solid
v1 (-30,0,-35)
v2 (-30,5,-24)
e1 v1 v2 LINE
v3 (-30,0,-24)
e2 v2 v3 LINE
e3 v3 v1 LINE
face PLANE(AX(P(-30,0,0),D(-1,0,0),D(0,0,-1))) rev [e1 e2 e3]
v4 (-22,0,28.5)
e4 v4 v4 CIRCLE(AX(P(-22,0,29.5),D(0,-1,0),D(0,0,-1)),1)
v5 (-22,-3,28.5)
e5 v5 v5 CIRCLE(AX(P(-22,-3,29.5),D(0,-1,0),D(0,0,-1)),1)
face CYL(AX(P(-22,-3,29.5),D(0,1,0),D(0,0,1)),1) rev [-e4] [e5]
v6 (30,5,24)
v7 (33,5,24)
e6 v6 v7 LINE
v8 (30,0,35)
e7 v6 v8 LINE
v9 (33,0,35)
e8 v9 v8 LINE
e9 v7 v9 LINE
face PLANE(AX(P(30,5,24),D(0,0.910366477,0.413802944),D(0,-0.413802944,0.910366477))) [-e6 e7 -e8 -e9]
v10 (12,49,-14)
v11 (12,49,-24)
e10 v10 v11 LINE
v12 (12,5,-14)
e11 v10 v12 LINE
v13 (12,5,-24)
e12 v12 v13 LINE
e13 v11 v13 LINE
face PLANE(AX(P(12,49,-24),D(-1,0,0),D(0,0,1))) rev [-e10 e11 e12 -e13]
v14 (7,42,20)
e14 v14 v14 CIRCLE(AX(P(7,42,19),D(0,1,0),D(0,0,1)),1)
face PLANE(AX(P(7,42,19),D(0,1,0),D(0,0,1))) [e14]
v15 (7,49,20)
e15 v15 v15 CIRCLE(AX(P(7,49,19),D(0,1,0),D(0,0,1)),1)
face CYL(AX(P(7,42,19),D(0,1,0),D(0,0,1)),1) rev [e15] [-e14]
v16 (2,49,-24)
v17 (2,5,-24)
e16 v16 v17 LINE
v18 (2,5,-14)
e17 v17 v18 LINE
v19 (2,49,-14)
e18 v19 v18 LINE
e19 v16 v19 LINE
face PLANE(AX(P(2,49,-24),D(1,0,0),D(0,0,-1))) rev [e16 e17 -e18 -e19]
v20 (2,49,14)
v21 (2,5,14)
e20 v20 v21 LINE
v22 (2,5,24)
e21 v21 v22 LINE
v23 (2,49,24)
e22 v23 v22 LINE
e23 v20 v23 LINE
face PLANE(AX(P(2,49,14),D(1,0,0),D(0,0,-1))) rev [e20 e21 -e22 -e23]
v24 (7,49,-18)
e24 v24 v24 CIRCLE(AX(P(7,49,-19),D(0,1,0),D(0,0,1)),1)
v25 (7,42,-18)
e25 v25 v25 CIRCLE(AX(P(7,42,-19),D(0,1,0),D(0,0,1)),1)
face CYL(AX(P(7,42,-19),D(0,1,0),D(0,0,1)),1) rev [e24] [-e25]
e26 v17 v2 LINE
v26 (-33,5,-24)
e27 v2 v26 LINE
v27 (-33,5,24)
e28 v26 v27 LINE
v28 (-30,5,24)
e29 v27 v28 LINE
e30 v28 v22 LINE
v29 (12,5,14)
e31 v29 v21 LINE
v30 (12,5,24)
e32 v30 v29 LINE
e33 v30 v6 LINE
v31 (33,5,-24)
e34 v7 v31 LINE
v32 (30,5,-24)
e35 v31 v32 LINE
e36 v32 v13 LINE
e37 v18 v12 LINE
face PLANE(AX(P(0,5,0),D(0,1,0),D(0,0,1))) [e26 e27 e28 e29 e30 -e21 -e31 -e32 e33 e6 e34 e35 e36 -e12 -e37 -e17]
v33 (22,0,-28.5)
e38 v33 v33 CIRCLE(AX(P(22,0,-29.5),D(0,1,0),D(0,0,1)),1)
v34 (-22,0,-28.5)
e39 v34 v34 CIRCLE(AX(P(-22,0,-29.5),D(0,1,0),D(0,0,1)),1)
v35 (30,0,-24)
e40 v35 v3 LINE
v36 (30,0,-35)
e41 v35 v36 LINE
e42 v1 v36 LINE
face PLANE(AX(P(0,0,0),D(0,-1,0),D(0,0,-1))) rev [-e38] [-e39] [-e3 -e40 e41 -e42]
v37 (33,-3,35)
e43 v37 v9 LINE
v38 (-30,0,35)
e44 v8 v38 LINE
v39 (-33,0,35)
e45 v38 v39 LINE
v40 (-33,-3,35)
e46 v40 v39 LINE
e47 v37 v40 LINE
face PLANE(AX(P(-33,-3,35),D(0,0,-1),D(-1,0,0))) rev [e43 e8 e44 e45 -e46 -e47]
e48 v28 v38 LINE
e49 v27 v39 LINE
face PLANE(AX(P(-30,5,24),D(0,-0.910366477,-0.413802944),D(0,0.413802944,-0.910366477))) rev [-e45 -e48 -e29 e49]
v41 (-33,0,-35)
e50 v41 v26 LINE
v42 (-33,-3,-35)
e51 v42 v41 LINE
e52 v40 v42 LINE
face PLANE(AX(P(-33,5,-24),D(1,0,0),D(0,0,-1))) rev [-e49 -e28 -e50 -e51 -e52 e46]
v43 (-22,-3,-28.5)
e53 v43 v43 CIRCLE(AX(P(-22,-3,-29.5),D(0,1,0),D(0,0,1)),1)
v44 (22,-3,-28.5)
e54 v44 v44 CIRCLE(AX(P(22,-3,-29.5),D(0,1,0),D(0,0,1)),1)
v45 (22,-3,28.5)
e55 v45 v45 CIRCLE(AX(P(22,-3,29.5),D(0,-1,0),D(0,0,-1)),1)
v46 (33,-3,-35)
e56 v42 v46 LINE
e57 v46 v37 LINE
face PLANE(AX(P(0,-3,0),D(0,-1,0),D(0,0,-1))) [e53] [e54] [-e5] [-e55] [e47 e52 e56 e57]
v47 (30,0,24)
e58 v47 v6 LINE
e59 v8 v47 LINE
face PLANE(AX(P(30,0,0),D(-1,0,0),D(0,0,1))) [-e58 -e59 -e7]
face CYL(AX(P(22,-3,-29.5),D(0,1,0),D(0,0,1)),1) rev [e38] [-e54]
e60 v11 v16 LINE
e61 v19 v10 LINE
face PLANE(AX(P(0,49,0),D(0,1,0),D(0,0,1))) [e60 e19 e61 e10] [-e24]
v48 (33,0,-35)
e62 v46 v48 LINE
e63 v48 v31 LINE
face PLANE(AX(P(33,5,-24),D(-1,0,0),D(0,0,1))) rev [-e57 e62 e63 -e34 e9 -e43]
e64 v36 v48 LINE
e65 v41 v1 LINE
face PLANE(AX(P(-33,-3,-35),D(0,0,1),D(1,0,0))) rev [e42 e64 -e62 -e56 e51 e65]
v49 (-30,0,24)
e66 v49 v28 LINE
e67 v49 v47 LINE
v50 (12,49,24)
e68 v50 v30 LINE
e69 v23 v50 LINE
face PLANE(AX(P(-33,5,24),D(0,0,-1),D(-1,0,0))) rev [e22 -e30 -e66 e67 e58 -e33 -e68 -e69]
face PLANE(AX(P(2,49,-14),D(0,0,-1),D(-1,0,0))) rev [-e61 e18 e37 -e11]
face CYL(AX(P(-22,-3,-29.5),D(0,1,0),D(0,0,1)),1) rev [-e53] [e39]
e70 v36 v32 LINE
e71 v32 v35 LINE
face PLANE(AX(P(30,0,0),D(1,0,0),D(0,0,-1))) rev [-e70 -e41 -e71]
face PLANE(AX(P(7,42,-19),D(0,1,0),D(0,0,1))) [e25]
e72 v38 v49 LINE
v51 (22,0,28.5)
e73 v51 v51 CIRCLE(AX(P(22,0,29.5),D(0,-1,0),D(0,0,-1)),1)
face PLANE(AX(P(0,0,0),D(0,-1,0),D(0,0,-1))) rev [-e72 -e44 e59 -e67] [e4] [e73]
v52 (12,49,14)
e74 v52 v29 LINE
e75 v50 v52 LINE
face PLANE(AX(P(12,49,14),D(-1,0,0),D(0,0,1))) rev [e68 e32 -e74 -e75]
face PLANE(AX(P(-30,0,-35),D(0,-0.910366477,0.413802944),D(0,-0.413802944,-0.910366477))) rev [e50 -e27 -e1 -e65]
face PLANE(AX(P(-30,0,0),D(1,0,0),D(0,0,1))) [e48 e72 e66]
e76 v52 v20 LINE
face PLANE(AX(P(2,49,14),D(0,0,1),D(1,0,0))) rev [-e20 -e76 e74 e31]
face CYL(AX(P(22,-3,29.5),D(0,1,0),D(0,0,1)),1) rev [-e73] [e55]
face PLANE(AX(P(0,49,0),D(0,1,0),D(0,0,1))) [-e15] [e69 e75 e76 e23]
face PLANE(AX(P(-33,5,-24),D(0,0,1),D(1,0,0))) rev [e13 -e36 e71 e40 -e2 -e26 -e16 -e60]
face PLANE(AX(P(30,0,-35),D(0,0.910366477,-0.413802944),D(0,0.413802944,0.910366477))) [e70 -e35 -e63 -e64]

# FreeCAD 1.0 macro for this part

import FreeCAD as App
import Part
import Sketcher
from FreeCAD import Vector
Q = App.Units.Quantity

doc = App.newDocument("Part")
body = doc.addObject("PartDesign::Body", "Body")

# Sketch on XZ plane
sketch1 = body.newObject("Sketcher::SketchObject", "Sketch")
sketch1.AttachmentSupport = (doc.getObject("XZ_Plane"), [""])
sketch1.MapMode = "FlatFace"
sketch1.addGeometry(Part.LineSegment(Vector(-33, -24, 0), Vector(-33, 24, 0)), False)
sketch1.addGeometry(Part.LineSegment(Vector(-33, 24, 0), Vector(33, 24, 0)), False)
sketch1.addGeometry(Part.LineSegment(Vector(33, 24, 0), Vector(33, -24, 0)), False)
sketch1.addGeometry(Part.LineSegment(Vector(33, -24, 0), Vector(-33, -24, 0)), False)
sketch1.addConstraint(Sketcher.Constraint("Coincident", 0, 2, 1, 1))
sketch1.addConstraint(Sketcher.Constraint("Coincident", 1, 2, 2, 1))
sketch1.addConstraint(Sketcher.Constraint("Coincident", 2, 2, 3, 1))
sketch1.addConstraint(Sketcher.Constraint("Coincident", 3, 2, 0, 1))
sketch1.addConstraint(Sketcher.Constraint("Vertical", 0))
sketch1.addConstraint(Sketcher.Constraint("Horizontal", 1))
sketch1.addConstraint(Sketcher.Constraint("Vertical", 2))
sketch1.addConstraint(Sketcher.Constraint("Horizontal", 3))
sketch1.addConstraint(Sketcher.Constraint("Symmetric", 0, 2, 2, 2, -1, 1))
sketch1.addConstraint(Sketcher.Constraint("DistanceX", 1, 1, 1, 2, Q("66 mm")))
sketch1.addConstraint(Sketcher.Constraint("DistanceY", 0, 1, 0, 2, Q("48 mm")))
pad1 = body.newObject("PartDesign::Pad", "Pad")
pad1.Profile = sketch1
pad1.Length = 5
pad1.Reversed = True

# Sketch on XZ plane
sketch2 = body.newObject("Sketcher::SketchObject", "Sketch001")
sketch2.AttachmentSupport = (doc.getObject("XZ_Plane"), [""])
sketch2.MapMode = "FlatFace"
sketch2.AttachmentOffset = App.Placement(Vector(0, 0, -5), App.Rotation())
sketch2.addGeometry(Part.LineSegment(Vector(2, -24, 0), Vector(2, -14, 0)), False)
sketch2.addGeometry(Part.LineSegment(Vector(2, -14, 0), Vector(12, -14, 0)), False)
sketch2.addGeometry(Part.LineSegment(Vector(12, -14, 0), Vector(12, -24, 0)), False)
sketch2.addGeometry(Part.LineSegment(Vector(12, -24, 0), Vector(2, -24, 0)), False)
sketch2.addGeometry(Part.LineSegment(Vector(2, 14, 0), Vector(2, 24, 0)), False)
sketch2.addGeometry(Part.LineSegment(Vector(2, 24, 0), Vector(12, 24, 0)), False)
sketch2.addGeometry(Part.LineSegment(Vector(12, 24, 0), Vector(12, 14, 0)), False)
sketch2.addGeometry(Part.LineSegment(Vector(12, 14, 0), Vector(2, 14, 0)), False)
sketch2.addConstraint(Sketcher.Constraint("Coincident", 0, 2, 1, 1))
sketch2.addConstraint(Sketcher.Constraint("Coincident", 1, 2, 2, 1))
sketch2.addConstraint(Sketcher.Constraint("Coincident", 2, 2, 3, 1))
sketch2.addConstraint(Sketcher.Constraint("Coincident", 3, 2, 0, 1))
sketch2.addConstraint(Sketcher.Constraint("Coincident", 4, 2, 5, 1))
sketch2.addConstraint(Sketcher.Constraint("Coincident", 5, 2, 6, 1))
sketch2.addConstraint(Sketcher.Constraint("Coincident", 6, 2, 7, 1))
sketch2.addConstraint(Sketcher.Constraint("Coincident", 7, 2, 4, 1))
sketch2.addConstraint(Sketcher.Constraint("Vertical", 0))
sketch2.addConstraint(Sketcher.Constraint("Horizontal", 1))
sketch2.addConstraint(Sketcher.Constraint("Vertical", 2))
sketch2.addConstraint(Sketcher.Constraint("Horizontal", 3))
sketch2.addConstraint(Sketcher.Constraint("Vertical", 4))
sketch2.addConstraint(Sketcher.Constraint("Horizontal", 5))
sketch2.addConstraint(Sketcher.Constraint("Vertical", 6))
sketch2.addConstraint(Sketcher.Constraint("Horizontal", 7))
sketch2.addConstraint(Sketcher.Constraint("Symmetric", 3, 2, 4, 2, -1))
sketch2.addConstraint(Sketcher.Constraint("Symmetric", 1, 2, 6, 2, -1))
sketch2.addConstraint(Sketcher.Constraint("Equal", 7, 0))
sketch2.addConstraint(Sketcher.Constraint("DistanceX", 1, 1, 1, 2, Q("10 mm")))
sketch2.addConstraint(Sketcher.Constraint("DistanceX", -1, 1, 0, 2, Q("2 mm")))
sketch2.addConstraint(Sketcher.Constraint("DistanceY", 0, 2, -1, 1, Q("14 mm")))
pad2 = body.newObject("PartDesign::Pad", "Pad001")
pad2.Profile = sketch2
pad2.Length = 44
pad2.Reversed = True

# Sketch on XZ plane
sketch3 = body.newObject("Sketcher::SketchObject", "Sketch002")
sketch3.AttachmentSupport = (doc.getObject("XZ_Plane"), [""])
sketch3.MapMode = "FlatFace"
sketch3.AttachmentOffset = App.Placement(Vector(0, 0, -49), App.Rotation())
sketch3.addGeometry(Part.Circle(Vector(7, -19, 0), Vector(0, 0, 1), 1), False)
sketch3.addGeometry(Part.Circle(Vector(7, 19, 0), Vector(0, 0, 1), 1), False)
sketch3.addConstraint(Sketcher.Constraint("Equal", 0, 1))
sketch3.addConstraint(Sketcher.Constraint("Symmetric", 0, 3, 1, 3, -1))
sketch3.addConstraint(Sketcher.Constraint("Diameter", 0, Q("2 mm")))
sketch3.addConstraint(Sketcher.Constraint("DistanceX", -1, 1, 0, 3, Q("7 mm")))
sketch3.addConstraint(Sketcher.Constraint("DistanceY", 0, 3, -1, 1, Q("19 mm")))
pocket1 = body.newObject("PartDesign::Pocket", "Pocket")
pocket1.Profile = sketch3
pocket1.Length = 7
pocket1.Reversed = True

# Sketch on XZ plane
sketch4 = body.newObject("Sketcher::SketchObject", "Sketch003")
sketch4.AttachmentSupport = (doc.getObject("XZ_Plane"), [""])
sketch4.MapMode = "FlatFace"
sketch4.addGeometry(Part.LineSegment(Vector(-33, 35, 0), Vector(-33, -35, 0)), False)
sketch4.addGeometry(Part.LineSegment(Vector(-33, -35, 0), Vector(33, -35, 0)), False)
sketch4.addGeometry(Part.LineSegment(Vector(33, -35, 0), Vector(33, 35, 0)), False)
sketch4.addGeometry(Part.LineSegment(Vector(33, 35, 0), Vector(-33, 35, 0)), False)
sketch4.addConstraint(Sketcher.Constraint("Coincident", 0, 2, 1, 1))
sketch4.addConstraint(Sketcher.Constraint("Coincident", 1, 2, 2, 1))
sketch4.addConstraint(Sketcher.Constraint("Coincident", 2, 2, 3, 1))
sketch4.addConstraint(Sketcher.Constraint("Coincident", 3, 2, 0, 1))
sketch4.addConstraint(Sketcher.Constraint("Vertical", 0))
sketch4.addConstraint(Sketcher.Constraint("Horizontal", 1))
sketch4.addConstraint(Sketcher.Constraint("Vertical", 2))
sketch4.addConstraint(Sketcher.Constraint("Horizontal", 3))
sketch4.addConstraint(Sketcher.Constraint("Symmetric", 0, 2, 2, 2, -1, 1))
sketch4.addConstraint(Sketcher.Constraint("DistanceX", 1, 1, 1, 2, Q("66 mm")))
sketch4.addConstraint(Sketcher.Constraint("DistanceY", 0, 2, 0, 1, Q("70 mm")))
pad3 = body.newObject("PartDesign::Pad", "Pad002")
pad3.Profile = sketch4
pad3.Length = 3

# Sketch on YZ plane
sketch5 = body.newObject("Sketcher::SketchObject", "Sketch004")
sketch5.AttachmentSupport = (doc.getObject("YZ_Plane"), [""])
sketch5.MapMode = "FlatFace"
sketch5.AttachmentOffset = App.Placement(Vector(0, 0, 33), App.Rotation())
sketch5.addGeometry(Part.LineSegment(Vector(5, 24, 0), Vector(0, 35, 0)), False)
sketch5.addGeometry(Part.LineSegment(Vector(0, 35, 0), Vector(0, 24, 0)), False)
sketch5.addGeometry(Part.LineSegment(Vector(0, 24, 0), Vector(5, 24, 0)), False)
sketch5.addGeometry(Part.LineSegment(Vector(5, -24, 0), Vector(0, -24, 0)), False)
sketch5.addGeometry(Part.LineSegment(Vector(0, -24, 0), Vector(0, -35, 0)), False)
sketch5.addGeometry(Part.LineSegment(Vector(0, -35, 0), Vector(5, -24, 0)), False)
sketch5.addConstraint(Sketcher.Constraint("Coincident", 0, 2, 1, 1))
sketch5.addConstraint(Sketcher.Constraint("Coincident", 1, 2, 2, 1))
sketch5.addConstraint(Sketcher.Constraint("Coincident", 2, 2, 0, 1))
sketch5.addConstraint(Sketcher.Constraint("Coincident", 3, 2, 4, 1))
sketch5.addConstraint(Sketcher.Constraint("Coincident", 4, 2, 5, 1))
sketch5.addConstraint(Sketcher.Constraint("Coincident", 5, 2, 3, 1))
sketch5.addConstraint(Sketcher.Constraint("Vertical", 1))
sketch5.addConstraint(Sketcher.Constraint("Horizontal", 2))
sketch5.addConstraint(Sketcher.Constraint("Horizontal", 3))
sketch5.addConstraint(Sketcher.Constraint("Vertical", 4))
sketch5.addConstraint(Sketcher.Constraint("Symmetric", 1, 2, 3, 2, -1, 1))
sketch5.addConstraint(Sketcher.Constraint("Symmetric", 0, 2, 4, 2, -1))
sketch5.addConstraint(Sketcher.Constraint("Vertical", 2, 2, 5, 2))
sketch5.addConstraint(Sketcher.Constraint("DistanceX", 2, 1, 2, 2, Q("5 mm")))
sketch5.addConstraint(Sketcher.Constraint("DistanceY", 1, 2, 1, 1, Q("11 mm")))
sketch5.addConstraint(Sketcher.Constraint("DistanceY", -1, 1, 0, 2, Q("35 mm")))
pad4 = body.newObject("PartDesign::Pad", "Pad003")
pad4.Profile = sketch5
pad4.Length = 3
pad4.Reversed = True
doc.recompute()

mirrored = body.newObject("PartDesign::Mirrored", "Mirrored")
mirrored.Originals = [pad4]
mirrored.MirrorPlane = (doc.getObject("YZ_Plane"), [""])
body.Tip = mirrored

# Sketch on XZ plane
sketch6 = body.newObject("Sketcher::SketchObject", "Sketch005")
sketch6.AttachmentSupport = (doc.getObject("XZ_Plane"), [""])
sketch6.MapMode = "FlatFace"
sketch6.addGeometry(Part.Circle(Vector(-22, -29.5, 0), Vector(0, 0, 1), 1), False)
sketch6.addGeometry(Part.Circle(Vector(22, -29.5, 0), Vector(0, 0, 1), 1), False)
sketch6.addConstraint(Sketcher.Constraint("Equal", 0, 1))
sketch6.addConstraint(Sketcher.Constraint("Symmetric", 0, 3, 1, 3, -2))
sketch6.addConstraint(Sketcher.Constraint("Diameter", 0, Q("2 mm")))
sketch6.addConstraint(Sketcher.Constraint("DistanceX", 0, 3, -1, 1, Q("22 mm")))
sketch6.addConstraint(Sketcher.Constraint("DistanceY", 0, 3, -1, 1, Q("29.5 mm")))
pocket2 = body.newObject("PartDesign::Pocket", "Pocket001")
pocket2.Profile = sketch6
pocket2.Length = 3
pocket2.Reversed = True
doc.recompute()

mirrored2 = body.newObject("PartDesign::Mirrored", "Mirrored001")
mirrored2.Originals = [pocket2]
mirrored2.MirrorPlane = (doc.getObject("XY_Plane"), [""])
body.Tip = mirrored2

doc.recompute()
